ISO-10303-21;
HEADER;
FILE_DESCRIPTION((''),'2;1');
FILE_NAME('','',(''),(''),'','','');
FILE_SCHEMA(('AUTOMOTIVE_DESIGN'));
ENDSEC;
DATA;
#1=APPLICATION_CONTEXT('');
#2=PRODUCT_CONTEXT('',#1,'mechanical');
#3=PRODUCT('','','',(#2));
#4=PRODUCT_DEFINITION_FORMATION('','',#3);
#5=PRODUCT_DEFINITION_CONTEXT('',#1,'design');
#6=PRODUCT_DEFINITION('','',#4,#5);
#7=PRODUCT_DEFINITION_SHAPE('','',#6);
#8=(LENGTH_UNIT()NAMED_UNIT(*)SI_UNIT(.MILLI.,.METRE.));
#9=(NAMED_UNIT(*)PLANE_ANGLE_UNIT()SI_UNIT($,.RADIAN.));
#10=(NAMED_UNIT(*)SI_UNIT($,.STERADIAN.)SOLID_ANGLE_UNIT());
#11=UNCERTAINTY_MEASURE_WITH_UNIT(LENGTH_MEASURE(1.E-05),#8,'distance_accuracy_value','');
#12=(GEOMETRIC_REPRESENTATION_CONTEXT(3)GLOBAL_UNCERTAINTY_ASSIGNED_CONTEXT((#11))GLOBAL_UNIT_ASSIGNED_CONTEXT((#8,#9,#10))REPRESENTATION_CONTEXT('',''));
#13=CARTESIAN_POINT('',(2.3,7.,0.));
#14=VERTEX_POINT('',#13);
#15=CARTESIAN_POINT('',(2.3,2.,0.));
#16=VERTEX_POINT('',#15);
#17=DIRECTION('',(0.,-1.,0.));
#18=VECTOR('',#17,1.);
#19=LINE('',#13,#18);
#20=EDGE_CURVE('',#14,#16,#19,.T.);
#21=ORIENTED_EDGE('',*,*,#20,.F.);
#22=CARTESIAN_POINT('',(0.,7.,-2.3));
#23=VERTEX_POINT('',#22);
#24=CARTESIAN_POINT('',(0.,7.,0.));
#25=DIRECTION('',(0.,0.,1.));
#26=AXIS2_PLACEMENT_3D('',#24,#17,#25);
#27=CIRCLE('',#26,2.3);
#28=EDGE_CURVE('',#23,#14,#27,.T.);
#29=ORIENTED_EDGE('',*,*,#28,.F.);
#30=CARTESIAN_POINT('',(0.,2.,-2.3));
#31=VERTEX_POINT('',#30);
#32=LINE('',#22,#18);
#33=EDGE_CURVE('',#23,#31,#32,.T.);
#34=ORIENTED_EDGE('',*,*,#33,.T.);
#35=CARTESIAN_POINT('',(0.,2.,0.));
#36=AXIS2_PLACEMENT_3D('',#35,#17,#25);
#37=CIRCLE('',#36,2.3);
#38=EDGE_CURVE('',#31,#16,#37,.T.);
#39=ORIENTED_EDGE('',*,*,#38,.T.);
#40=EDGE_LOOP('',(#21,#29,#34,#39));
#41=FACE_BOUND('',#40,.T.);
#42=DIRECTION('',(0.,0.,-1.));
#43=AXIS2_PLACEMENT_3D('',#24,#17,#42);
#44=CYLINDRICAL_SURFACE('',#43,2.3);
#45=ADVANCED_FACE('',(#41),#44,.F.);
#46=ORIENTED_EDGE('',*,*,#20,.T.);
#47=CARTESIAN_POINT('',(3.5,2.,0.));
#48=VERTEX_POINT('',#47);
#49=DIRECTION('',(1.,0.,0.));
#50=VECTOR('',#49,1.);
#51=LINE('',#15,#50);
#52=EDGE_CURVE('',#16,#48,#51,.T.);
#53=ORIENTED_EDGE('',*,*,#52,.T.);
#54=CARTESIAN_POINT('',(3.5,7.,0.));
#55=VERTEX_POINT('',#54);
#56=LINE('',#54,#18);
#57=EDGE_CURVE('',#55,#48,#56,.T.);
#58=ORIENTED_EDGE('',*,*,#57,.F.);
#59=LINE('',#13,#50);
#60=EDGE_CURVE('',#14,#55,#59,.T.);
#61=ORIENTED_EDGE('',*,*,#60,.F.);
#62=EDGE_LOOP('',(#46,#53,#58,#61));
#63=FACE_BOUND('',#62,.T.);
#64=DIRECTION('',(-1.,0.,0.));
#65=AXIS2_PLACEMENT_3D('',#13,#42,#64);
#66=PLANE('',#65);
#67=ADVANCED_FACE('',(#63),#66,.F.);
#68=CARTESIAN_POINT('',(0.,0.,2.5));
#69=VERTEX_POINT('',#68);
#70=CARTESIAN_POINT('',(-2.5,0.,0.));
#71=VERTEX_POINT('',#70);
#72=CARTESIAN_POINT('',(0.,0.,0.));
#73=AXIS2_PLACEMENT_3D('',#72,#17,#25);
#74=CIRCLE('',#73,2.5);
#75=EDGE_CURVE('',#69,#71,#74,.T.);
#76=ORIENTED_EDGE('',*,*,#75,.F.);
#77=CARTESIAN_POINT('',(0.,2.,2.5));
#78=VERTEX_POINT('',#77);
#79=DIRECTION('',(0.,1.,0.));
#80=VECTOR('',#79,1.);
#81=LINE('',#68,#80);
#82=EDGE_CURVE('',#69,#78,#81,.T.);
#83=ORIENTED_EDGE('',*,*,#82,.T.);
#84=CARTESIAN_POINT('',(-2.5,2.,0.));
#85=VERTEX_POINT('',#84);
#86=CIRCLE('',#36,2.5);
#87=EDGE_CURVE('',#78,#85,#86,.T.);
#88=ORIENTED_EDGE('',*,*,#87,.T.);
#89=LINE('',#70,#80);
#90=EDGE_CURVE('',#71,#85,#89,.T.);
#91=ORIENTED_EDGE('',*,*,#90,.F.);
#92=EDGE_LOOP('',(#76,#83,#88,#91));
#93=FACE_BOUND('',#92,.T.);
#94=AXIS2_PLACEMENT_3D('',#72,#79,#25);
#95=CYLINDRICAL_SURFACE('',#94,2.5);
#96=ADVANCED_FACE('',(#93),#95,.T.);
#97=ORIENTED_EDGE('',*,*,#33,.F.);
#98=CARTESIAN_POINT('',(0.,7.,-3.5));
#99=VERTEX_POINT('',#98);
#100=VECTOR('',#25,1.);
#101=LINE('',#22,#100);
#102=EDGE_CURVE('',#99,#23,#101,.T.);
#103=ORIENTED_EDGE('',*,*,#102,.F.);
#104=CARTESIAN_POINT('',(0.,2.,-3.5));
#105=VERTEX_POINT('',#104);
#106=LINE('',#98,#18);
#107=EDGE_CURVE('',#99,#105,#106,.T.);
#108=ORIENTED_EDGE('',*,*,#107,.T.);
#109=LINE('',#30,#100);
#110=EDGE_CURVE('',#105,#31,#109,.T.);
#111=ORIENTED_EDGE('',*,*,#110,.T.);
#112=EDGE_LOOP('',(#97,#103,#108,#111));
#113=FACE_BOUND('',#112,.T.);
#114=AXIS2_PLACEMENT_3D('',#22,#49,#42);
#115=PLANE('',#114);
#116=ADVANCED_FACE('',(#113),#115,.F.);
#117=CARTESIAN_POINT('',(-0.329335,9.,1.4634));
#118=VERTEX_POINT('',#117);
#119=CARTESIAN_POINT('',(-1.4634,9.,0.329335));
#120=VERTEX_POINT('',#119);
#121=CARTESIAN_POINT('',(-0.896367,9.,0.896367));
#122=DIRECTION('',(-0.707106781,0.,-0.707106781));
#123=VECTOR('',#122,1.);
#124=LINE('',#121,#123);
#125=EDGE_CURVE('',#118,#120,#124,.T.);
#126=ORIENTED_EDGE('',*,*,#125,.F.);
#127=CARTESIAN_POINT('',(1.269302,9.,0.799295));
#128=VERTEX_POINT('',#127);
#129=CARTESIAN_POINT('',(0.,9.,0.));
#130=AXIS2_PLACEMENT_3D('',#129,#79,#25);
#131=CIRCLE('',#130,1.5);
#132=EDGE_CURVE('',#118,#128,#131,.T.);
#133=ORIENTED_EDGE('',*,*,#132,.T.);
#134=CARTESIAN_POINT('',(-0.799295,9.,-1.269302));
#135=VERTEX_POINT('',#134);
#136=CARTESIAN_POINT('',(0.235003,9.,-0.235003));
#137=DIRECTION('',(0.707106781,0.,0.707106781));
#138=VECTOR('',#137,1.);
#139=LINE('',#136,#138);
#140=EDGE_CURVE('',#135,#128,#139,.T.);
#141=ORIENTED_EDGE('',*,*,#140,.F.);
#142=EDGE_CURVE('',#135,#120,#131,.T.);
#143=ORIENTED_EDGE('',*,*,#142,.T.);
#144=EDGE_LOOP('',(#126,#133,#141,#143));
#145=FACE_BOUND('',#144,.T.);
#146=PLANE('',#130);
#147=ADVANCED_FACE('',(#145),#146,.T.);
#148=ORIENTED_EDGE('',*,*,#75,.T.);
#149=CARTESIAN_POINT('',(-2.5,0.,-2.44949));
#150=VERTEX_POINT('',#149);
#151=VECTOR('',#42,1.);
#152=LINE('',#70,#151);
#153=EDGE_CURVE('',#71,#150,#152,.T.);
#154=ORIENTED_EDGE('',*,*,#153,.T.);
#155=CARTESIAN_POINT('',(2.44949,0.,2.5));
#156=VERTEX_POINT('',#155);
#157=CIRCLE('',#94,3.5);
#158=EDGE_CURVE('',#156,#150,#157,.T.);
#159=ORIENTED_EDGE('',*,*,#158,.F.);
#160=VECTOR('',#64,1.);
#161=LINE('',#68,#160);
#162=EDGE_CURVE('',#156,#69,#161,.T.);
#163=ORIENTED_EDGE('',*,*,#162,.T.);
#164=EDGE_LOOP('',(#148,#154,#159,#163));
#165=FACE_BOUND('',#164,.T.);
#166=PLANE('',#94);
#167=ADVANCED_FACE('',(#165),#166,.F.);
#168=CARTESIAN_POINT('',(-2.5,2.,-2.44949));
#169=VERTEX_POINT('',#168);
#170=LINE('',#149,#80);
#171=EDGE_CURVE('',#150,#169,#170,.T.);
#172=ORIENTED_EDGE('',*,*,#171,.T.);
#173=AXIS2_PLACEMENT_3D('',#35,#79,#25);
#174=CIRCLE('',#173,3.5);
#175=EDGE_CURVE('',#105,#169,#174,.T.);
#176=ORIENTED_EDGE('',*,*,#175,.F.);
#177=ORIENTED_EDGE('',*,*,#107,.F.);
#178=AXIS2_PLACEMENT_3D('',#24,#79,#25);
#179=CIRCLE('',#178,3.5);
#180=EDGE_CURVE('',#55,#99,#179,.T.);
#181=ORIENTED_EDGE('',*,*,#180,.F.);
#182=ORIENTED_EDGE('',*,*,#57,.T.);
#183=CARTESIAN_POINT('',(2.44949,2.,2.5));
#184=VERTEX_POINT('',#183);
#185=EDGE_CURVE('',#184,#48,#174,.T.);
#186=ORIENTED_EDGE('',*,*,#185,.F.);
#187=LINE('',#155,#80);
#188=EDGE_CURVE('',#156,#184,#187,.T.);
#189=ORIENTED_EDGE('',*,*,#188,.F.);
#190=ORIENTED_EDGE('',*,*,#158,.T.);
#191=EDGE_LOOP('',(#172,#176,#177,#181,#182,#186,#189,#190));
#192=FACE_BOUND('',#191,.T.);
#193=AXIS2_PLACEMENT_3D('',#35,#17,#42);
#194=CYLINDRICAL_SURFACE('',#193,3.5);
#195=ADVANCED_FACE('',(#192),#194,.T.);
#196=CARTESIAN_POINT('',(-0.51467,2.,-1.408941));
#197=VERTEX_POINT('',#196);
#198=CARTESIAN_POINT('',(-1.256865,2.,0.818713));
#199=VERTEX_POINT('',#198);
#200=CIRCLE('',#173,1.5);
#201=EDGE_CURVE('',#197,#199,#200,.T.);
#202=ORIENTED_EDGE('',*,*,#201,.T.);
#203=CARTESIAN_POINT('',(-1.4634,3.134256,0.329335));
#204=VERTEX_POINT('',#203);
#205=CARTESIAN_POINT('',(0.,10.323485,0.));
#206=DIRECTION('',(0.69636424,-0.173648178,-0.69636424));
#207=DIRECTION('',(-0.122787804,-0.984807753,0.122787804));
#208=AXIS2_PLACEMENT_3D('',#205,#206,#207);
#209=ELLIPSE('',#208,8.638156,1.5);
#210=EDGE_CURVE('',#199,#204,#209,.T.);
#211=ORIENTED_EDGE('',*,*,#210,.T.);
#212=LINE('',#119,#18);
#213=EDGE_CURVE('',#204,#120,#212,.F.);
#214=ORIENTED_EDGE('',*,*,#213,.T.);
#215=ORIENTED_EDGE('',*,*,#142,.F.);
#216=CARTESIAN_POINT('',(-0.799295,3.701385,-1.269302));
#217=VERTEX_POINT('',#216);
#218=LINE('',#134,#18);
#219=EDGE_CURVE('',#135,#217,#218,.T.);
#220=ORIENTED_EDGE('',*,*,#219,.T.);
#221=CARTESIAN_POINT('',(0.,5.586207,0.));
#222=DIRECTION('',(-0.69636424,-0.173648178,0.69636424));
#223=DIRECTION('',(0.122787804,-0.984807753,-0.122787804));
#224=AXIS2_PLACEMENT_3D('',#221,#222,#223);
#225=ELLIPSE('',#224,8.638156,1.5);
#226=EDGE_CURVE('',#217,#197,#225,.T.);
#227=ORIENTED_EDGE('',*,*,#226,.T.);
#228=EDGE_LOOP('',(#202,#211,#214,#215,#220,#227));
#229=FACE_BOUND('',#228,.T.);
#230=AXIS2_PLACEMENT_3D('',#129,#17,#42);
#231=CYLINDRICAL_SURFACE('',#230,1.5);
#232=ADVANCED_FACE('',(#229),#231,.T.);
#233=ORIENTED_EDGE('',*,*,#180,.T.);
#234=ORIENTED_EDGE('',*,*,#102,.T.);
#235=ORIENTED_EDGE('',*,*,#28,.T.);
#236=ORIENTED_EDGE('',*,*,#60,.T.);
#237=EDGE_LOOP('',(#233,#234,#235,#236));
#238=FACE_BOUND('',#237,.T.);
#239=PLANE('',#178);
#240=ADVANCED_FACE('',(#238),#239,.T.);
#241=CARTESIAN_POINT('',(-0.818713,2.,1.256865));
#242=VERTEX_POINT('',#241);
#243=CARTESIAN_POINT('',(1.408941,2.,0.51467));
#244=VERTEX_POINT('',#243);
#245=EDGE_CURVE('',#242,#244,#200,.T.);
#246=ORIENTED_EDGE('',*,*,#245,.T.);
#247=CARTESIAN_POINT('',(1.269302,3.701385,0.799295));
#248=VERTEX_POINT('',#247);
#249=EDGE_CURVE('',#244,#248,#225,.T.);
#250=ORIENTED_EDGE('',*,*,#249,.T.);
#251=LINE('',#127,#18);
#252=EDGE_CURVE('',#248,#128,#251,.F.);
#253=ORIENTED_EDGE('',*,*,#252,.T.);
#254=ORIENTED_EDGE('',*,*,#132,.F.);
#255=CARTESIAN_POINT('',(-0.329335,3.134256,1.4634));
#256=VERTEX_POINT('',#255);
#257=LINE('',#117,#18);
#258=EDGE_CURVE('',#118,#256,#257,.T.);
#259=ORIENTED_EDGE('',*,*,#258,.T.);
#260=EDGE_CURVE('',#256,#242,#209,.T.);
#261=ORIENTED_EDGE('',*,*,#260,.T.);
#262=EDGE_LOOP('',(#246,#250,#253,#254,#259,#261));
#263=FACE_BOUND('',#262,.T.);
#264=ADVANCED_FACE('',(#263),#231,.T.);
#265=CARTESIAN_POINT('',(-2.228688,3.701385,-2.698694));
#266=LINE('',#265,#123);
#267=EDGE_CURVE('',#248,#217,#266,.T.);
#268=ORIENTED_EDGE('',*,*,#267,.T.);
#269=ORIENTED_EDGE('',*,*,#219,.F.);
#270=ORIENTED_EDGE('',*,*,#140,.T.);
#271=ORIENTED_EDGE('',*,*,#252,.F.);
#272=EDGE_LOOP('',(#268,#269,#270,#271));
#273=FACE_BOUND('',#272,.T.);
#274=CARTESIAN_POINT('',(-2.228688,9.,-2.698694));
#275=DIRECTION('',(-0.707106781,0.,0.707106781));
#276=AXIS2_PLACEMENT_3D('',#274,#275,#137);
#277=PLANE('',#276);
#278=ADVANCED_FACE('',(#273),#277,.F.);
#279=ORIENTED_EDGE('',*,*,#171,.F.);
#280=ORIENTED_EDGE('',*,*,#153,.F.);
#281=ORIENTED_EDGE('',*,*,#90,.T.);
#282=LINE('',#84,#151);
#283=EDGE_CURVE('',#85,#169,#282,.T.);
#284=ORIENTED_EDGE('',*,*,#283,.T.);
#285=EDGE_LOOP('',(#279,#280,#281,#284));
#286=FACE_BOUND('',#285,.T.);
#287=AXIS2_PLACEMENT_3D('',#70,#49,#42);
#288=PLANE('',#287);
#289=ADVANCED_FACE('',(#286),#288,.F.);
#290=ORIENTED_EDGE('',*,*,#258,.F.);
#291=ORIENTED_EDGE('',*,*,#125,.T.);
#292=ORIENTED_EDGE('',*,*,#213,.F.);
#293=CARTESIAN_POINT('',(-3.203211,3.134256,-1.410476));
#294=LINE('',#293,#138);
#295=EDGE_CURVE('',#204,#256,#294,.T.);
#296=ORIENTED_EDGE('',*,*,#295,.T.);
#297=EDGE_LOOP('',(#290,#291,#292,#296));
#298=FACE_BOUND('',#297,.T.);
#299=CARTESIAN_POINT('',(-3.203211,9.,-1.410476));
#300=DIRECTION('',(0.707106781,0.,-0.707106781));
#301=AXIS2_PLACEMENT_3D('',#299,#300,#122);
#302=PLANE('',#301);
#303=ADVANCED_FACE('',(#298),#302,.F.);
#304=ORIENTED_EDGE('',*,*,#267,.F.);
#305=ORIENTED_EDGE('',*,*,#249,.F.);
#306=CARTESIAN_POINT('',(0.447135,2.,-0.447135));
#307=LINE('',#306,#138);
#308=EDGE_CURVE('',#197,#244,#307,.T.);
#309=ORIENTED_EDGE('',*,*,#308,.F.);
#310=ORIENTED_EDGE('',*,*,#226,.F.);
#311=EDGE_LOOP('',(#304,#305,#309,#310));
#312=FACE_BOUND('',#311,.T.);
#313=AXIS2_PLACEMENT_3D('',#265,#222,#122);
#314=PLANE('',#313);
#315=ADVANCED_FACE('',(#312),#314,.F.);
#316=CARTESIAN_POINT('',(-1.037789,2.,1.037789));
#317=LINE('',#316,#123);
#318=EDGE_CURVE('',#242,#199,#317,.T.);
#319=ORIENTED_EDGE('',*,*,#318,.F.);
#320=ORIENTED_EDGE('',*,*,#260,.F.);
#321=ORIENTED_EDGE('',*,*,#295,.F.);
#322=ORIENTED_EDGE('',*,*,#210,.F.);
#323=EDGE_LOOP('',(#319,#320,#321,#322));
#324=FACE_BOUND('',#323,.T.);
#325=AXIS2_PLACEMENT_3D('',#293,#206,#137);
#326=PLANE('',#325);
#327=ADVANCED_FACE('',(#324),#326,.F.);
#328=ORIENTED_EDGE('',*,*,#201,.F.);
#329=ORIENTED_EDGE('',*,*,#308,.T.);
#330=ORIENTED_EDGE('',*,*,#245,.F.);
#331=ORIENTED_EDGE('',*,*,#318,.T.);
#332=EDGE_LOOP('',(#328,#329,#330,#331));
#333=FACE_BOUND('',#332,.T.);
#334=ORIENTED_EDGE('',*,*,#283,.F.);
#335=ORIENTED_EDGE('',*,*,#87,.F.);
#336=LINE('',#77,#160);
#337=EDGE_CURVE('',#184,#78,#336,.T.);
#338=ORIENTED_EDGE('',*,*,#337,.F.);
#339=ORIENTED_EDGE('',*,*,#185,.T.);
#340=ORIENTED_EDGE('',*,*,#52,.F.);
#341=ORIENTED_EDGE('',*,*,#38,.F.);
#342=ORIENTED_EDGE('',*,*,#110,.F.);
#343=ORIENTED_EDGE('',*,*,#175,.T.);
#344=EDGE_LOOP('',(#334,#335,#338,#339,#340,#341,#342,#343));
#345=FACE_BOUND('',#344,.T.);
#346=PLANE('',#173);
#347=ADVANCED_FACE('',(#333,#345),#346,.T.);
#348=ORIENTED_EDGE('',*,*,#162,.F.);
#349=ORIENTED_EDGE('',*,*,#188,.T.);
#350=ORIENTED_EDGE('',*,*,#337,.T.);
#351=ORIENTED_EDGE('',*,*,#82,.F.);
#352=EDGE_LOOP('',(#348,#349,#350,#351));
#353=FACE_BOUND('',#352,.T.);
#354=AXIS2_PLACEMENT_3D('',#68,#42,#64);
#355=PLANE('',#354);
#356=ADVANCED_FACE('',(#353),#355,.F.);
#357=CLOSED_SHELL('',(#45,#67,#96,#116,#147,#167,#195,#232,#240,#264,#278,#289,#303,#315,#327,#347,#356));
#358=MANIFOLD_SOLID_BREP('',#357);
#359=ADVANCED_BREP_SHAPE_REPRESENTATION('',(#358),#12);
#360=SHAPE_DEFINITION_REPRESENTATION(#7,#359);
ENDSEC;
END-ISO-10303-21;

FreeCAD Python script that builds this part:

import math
import FreeCAD as App
import Part
import Sketcher
Q = App.Units.Quantity


def edges_at(feature, points):
    """Names of the edges that pass closest to the given points."""
    edges = feature.Shape.Edges
    near = lambda p: min(range(len(edges)), key=lambda i: edges[i].distToShape(Part.Vertex(*p))[0])
    return sorted({f"Edge{near(p) + 1}" for p in points})


def add_polygon(sketch, points):
    """Adds a closed chain of lines whose ends are joined by coincident constraints."""
    first, n = sketch.GeometryCount, len(points)
    for a, b in zip(points, points[1:] + points[:1]):
        sketch.addGeometry(Part.LineSegment(App.Vector(*a, 0), App.Vector(*b, 0)), False)
    for i in range(n):
        sketch.addConstraint(Sketcher.Constraint("Coincident", first + i, 2, first + (i + 1) % n, 1))

doc = App.newDocument("Part")
body = doc.addObject("PartDesign::Body", "Body")

# Sketch on XZ plane
sketch1 = body.newObject("Sketcher::SketchObject", "Sketch")
sketch1.AttachmentSupport = (doc.getObject("XZ_Plane"), [""])
sketch1.MapMode = "FlatFace"
sketch1.addGeometry(Part.Circle(App.Vector(0, 0, 0), App.Vector(0, 0, 1), 3.5), False)
sketch1.addConstraint([
    Sketcher.Constraint("Coincident", 0, 3, -1, 1),
    Sketcher.Constraint("Diameter", 0, 7.0),
])
pad1 = body.newObject("PartDesign::Pad", "Pad")
pad1.Profile = sketch1
pad1.Length = 2
pad1.Reversed = True

# Sketch on XZ plane
sketch2 = body.newObject("Sketcher::SketchObject", "Sketch001")
sketch2.AttachmentSupport = (doc.getObject("XZ_Plane"), [""])
sketch2.MapMode = "FlatFace"
sketch2.AttachmentOffset = App.Placement(App.Vector(0, 0, -2), App.Rotation())
sketch2.addGeometry(Part.Circle(App.Vector(0, 0, 0), App.Vector(0, 0, 1), 1.5), False)
sketch2.addConstraint([
    Sketcher.Constraint("Coincident", 0, 3, -1, 1),
    Sketcher.Constraint("Diameter", 0, 3.0),
])
pad2 = body.newObject("PartDesign::Pad", "Pad001")
pad2.Profile = sketch2
pad2.Length = 7
pad2.Reversed = True

# Sketch on XZ plane
sketch3 = body.newObject("Sketcher::SketchObject", "Sketch002")
sketch3.AttachmentSupport = (doc.getObject("XZ_Plane"), [""])
sketch3.MapMode = "FlatFace"
sketch3.AttachmentOffset = App.Placement(App.Vector(0, 0, -2), App.Rotation())
add_polygon(sketch3, [(-5.8, -5.8), (-5.8, 5.8), (5.8, 5.8), (5.8, -5.8)])  # lines 0-3
sketch3.addGeometry(Part.ArcOfCircle(Part.Circle(App.Vector(0, 0, 0), App.Vector(0, 0, 1), 3.5), math.radians(-156), math.radians(-130)), False)  # 4
sketch3.addGeometry(Part.LineSegment(App.Vector(-2.2, -2.7, 0), App.Vector(2.7, 2.2, 0)), False)  # 5
sketch3.addGeometry(Part.ArcOfCircle(Part.Circle(App.Vector(0, 0, 0), App.Vector(0, 0, 1), 3.5), math.radians(40), math.radians(66)), False)  # 6
sketch3.addGeometry(Part.LineSegment(App.Vector(1.4, 3.2, 0), App.Vector(-3.2, -1.4, 0)), False)  # 7
sketch3.addConstraint([
    Sketcher.Constraint("Coincident", 4, 2, 5, 1),
    Sketcher.Constraint("Coincident", 5, 2, 6, 1),
    Sketcher.Constraint("Coincident", 6, 2, 7, 1),
    Sketcher.Constraint("Coincident", 7, 2, 4, 1),
    Sketcher.Constraint("Vertical", 0),
    Sketcher.Constraint("Horizontal", 1),
    Sketcher.Constraint("Vertical", 2),
    Sketcher.Constraint("Horizontal", 3),
    Sketcher.Constraint("Coincident", 4, 3, -1, 1),
    Sketcher.Constraint("Coincident", 6, 3, -1, 1),
    Sketcher.Constraint("Equal", 4, 6),
    Sketcher.Constraint("Symmetric", 0, 2, 2, 2, -1, 1),
    Sketcher.Constraint("Parallel", 5, 7),
    Sketcher.Constraint("Equal", 3, 0),
    Sketcher.Constraint("Radius", 4, 3.5),
    Sketcher.Constraint("Angle", 5, Q("45 deg")),
    Sketcher.Constraint("DistanceX", 1, 1, 1, 2, 11.676),
    Sketcher.Constraint("Distance", 5, 6.96837),
    Sketcher.Constraint("DistanceY", -1, 1, 6, 2, 3.203211),
])
pocket1 = body.newObject("PartDesign::Pocket", "Pocket")
pocket1.Profile = sketch3
pocket1.Length = 7

# Sketch on XZ plane
sketch4 = body.newObject("Sketcher::SketchObject", "Sketch003")
sketch4.AttachmentSupport = (doc.getObject("XZ_Plane"), [""])
sketch4.MapMode = "FlatFace"
sketch4.AttachmentOffset = App.Placement(App.Vector(0, 0, -2), App.Rotation())
sketch4.addGeometry([
    Part.LineSegment(App.Vector(0, -3.5, 0), App.Vector(0, -2.3, 0)),
    Part.ArcOfCircle(Part.Circle(App.Vector(0, 0, 0), App.Vector(0, 0, 1), 2.3), math.radians(-90), math.radians(0)),
    Part.LineSegment(App.Vector(2.3, 0, 0), App.Vector(3.5, 0, 0)),
    Part.ArcOfCircle(Part.Circle(App.Vector(0, 0, 0), App.Vector(0, 0, 1), 3.5), math.radians(-90), math.radians(0)),
], False)
sketch4.addConstraint([
    Sketcher.Constraint("Coincident", 0, 2, 1, 1),
    Sketcher.Constraint("Coincident", 1, 2, 2, 1),
    Sketcher.Constraint("Coincident", 2, 2, 3, 2),
    Sketcher.Constraint("Coincident", 3, 1, 0, 1),
    Sketcher.Constraint("Vertical", 0),
    Sketcher.Constraint("Horizontal", 2),
    Sketcher.Constraint("Coincident", 1, 3, -1, 1),
    Sketcher.Constraint("Coincident", 3, 3, -1, 1),
    Sketcher.Constraint("PointOnObject", 0, 2, -2),
    Sketcher.Constraint("PointOnObject", 1, 2, -1),
    Sketcher.Constraint("Radius", 1, 2.3),
    Sketcher.Constraint("Radius", 3, 3.5),
])
pad3 = body.newObject("PartDesign::Pad", "Pad002")
pad3.Profile = sketch4
pad3.Length = 5
pad3.Reversed = True
doc.recompute()

chamfer = body.newObject("PartDesign::Chamfer", "Chamfer")
chamfer.Base = (pad3, edges_at(pad3, [(0.235, 2, -0.235)]))
chamfer.ChamferType = "Two distances"
chamfer.Size = 0.3
chamfer.Size2 = 1.701385
doc.recompute()

chamfer2 = body.newObject("PartDesign::Chamfer", "Chamfer001")
chamfer2.Base = (chamfer, edges_at(chamfer, [(-0.896, 2, 0.896)]))
chamfer2.ChamferType = "Two distances"
chamfer2.Size = 0.2
chamfer2.Size2 = 1.134256

# Sketch on XZ plane
sketch5 = body.newObject("Sketcher::SketchObject", "Sketch004")
sketch5.AttachmentSupport = (doc.getObject("XZ_Plane"), [""])
sketch5.MapMode = "FlatFace"
sketch5.AttachmentOffset = App.Placement(App.Vector(0, 0, -2), App.Rotation())
sketch5.addGeometry([
    Part.LineSegment(App.Vector(-2.5, 0, 0), App.Vector(-2.5, -2.4, 0)),
    Part.ArcOfCircle(Part.Circle(App.Vector(0, 0, 0), App.Vector(0, 0, 1), 3.5), math.radians(46), math.radians(224)),
    Part.LineSegment(App.Vector(2.4, 2.5, 0), App.Vector(0, 2.5, 0)),
    Part.ArcOfCircle(Part.Circle(App.Vector(0, 0, 0), App.Vector(0, 0, 1), 2.5), math.radians(90), math.radians(180)),
], False)
sketch5.addConstraint([
    Sketcher.Constraint("Coincident", 0, 2, 1, 2),
    Sketcher.Constraint("Coincident", 1, 1, 2, 1),
    Sketcher.Constraint("Tangent", 2, 2, 3, 1),
    Sketcher.Constraint("Tangent", 3, 2, 0, 1),
    Sketcher.Constraint("Vertical", 0),
    Sketcher.Constraint("Horizontal", 2),
    Sketcher.Constraint("Coincident", 1, 3, -1, 1),
    Sketcher.Constraint("Coincident", 3, 3, -1, 1),
    Sketcher.Constraint("Radius", 1, 3.5),
    Sketcher.Constraint("Radius", 3, 2.5),
])
pocket2 = body.newObject("PartDesign::Pocket", "Pocket001")
pocket2.Profile = sketch5
pocket2.Type = "ThroughAll"
pocket2.Reversed = True

doc.recompute()
